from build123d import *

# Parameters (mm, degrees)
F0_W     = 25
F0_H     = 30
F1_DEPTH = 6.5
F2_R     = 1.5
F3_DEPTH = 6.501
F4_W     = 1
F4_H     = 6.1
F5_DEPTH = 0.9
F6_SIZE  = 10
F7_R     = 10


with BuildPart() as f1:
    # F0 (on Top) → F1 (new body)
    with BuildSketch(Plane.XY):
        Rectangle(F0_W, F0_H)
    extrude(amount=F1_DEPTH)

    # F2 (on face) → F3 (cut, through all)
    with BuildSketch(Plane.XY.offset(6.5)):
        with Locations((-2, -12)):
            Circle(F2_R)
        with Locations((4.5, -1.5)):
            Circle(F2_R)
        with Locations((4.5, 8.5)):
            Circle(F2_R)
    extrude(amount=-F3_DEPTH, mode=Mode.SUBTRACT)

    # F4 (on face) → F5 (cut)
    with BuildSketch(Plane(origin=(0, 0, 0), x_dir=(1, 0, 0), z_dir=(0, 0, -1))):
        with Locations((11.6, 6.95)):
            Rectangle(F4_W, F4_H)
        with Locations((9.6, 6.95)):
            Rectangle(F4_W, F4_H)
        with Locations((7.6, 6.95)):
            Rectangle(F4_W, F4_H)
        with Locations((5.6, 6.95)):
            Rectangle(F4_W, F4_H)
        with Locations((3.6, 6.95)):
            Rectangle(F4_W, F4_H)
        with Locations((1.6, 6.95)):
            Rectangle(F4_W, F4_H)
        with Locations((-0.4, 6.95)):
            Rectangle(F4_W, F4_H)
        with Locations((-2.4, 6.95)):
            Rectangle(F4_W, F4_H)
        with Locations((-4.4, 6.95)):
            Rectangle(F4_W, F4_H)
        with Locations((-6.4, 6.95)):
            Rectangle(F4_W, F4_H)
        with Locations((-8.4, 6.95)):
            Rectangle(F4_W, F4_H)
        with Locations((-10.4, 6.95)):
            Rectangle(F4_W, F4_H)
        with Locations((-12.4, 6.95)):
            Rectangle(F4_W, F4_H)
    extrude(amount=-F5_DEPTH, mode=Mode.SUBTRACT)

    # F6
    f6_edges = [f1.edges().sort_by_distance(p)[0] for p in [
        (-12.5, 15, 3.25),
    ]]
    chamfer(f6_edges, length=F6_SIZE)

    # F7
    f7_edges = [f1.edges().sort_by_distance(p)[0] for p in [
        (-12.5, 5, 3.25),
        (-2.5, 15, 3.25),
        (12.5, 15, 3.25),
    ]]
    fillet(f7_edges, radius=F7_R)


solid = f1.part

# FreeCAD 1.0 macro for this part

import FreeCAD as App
import Part
import Sketcher
from FreeCAD import Vector
Q = App.Units.Quantity


def edges_at(feature, points):
    """Names of the edges that pass closest to the given points."""
    edges = feature.Shape.Edges
    near = lambda p: min(range(len(edges)), key=lambda i: edges[i].distToShape(Part.Vertex(*p))[0])
    return sorted({f"Edge{near(p) + 1}" for p in points})

doc = App.newDocument("Part")
params = doc.addObject("Spreadsheet::Sheet", "Params")
for row, (alias, value) in enumerate([
    ("sketch1_width", "25 mm"),
    ("sketch1_height", "30 mm"),
    ("pad1_length", "6.5 mm"),
    ("sketch2_diameter", "3 mm"),
    ("sketch3_width", "1 mm"),
    ("sketch3_height", "6.1 mm"),
    ("pocket2_length", "0.9 mm"),
    ("chamfer_size", "10 mm"),
    ("fillet_radius", "10 mm"),
], start=1):
    params.set(f"A{row}", alias)
    params.set(f"B{row}", "=" + value)
    params.setAlias(f"B{row}", alias)

body = doc.addObject("PartDesign::Body", "Body")

sketch1 = body.newObject("Sketcher::SketchObject", "Sketch")
sketch1.AttachmentSupport = (doc.getObject("XY_Plane"), [""])
sketch1.MapMode = "FlatFace"
sketch1.addGeometry(Part.LineSegment(Vector(-12, 15, 0), Vector(-12, -15, 0)), False)
sketch1.addGeometry(Part.LineSegment(Vector(-12, -15, 0), Vector(12, -15, 0)), False)
sketch1.addGeometry(Part.LineSegment(Vector(12, -15, 0), Vector(12, 15, 0)), False)
sketch1.addGeometry(Part.LineSegment(Vector(12, 15, 0), Vector(-12, 15, 0)), False)
sketch1.addConstraint(Sketcher.Constraint("Coincident", 0, 2, 1, 1))
sketch1.addConstraint(Sketcher.Constraint("Coincident", 1, 2, 2, 1))
sketch1.addConstraint(Sketcher.Constraint("Coincident", 2, 2, 3, 1))
sketch1.addConstraint(Sketcher.Constraint("Coincident", 3, 2, 0, 1))
sketch1.addConstraint(Sketcher.Constraint("Vertical", 0))
sketch1.addConstraint(Sketcher.Constraint("Horizontal", 1))
sketch1.addConstraint(Sketcher.Constraint("Vertical", 2))
sketch1.addConstraint(Sketcher.Constraint("Horizontal", 3))
sketch1.addConstraint(Sketcher.Constraint("Symmetric", 0, 2, 2, 2, -1, 1))
sketch1.addConstraint(Sketcher.Constraint("DistanceX", 1, 1, 1, 2, Q("25 mm")))
sketch1.addConstraint(Sketcher.Constraint("DistanceY", 0, 2, 0, 1, Q("30 mm")))
sketch1.setExpression("Constraints[9]", "Params.sketch1_width")
sketch1.setExpression("Constraints[10]", "Params.sketch1_height")
pad1 = body.newObject("PartDesign::Pad", "Pad")
pad1.Profile = sketch1
pad1.setExpression("Length", "Params.pad1_length")

sketch2 = body.newObject("Sketcher::SketchObject", "Sketch001")
sketch2.AttachmentSupport = (doc.getObject("XY_Plane"), [""])
sketch2.MapMode = "FlatFace"
sketch2.AttachmentOffset = App.Placement(Vector(0, 0, 6.5), App.Rotation())
sketch2.addGeometry(Part.Circle(Vector(-2, -12, 0), Vector(0, 0, 1), 1.5), False)
sketch2.addGeometry(Part.Circle(Vector(4.5, -1.5, 0), Vector(0, 0, 1), 1.5), False)
sketch2.addGeometry(Part.Circle(Vector(4.5, 8.5, 0), Vector(0, 0, 1), 1.5), False)
sketch2.addConstraint(Sketcher.Constraint("Equal", 0, 1))
sketch2.addConstraint(Sketcher.Constraint("Equal", 1, 2))
sketch2.addConstraint(Sketcher.Constraint("Vertical", 1, 3, 2, 3))
sketch2.addConstraint(Sketcher.Constraint("Diameter", 0, Q("3 mm")))
sketch2.addConstraint(Sketcher.Constraint("DistanceX", 0, 3, -1, 1, Q("2 mm")))
sketch2.addConstraint(Sketcher.Constraint("DistanceY", 0, 3, -1, 1, Q("12 mm")))
sketch2.addConstraint(Sketcher.Constraint("DistanceY", 1, 3, 2, 3, Q("10 mm")))
sketch2.addConstraint(Sketcher.Constraint("DistanceX", -1, 1, 1, 3, Q("4.5 mm")))
sketch2.addConstraint(Sketcher.Constraint("DistanceY", 1, 3, -1, 1, Q("1.5 mm")))
sketch2.setExpression("Constraints[3]", "Params.sketch2_diameter")
pocket1 = body.newObject("PartDesign::Pocket", "Pocket")
pocket1.Profile = sketch2
pocket1.Type = "ThroughAll"

sketch3 = body.newObject("Sketcher::SketchObject", "Sketch002")
sketch3.AttachmentSupport = (doc.getObject("XY_Plane"), [""])
sketch3.MapMode = "FlatFace"
sketch3.addGeometry(Part.LineSegment(Vector(11.1, -10, 0), Vector(11.1, -3.9, 0)), False)
sketch3.addGeometry(Part.LineSegment(Vector(11.1, -3.9, 0), Vector(12.1, -3.9, 0)), False)
sketch3.addGeometry(Part.LineSegment(Vector(12.1, -3.9, 0), Vector(12.1, -10, 0)), False)
sketch3.addGeometry(Part.LineSegment(Vector(12.1, -10, 0), Vector(11.1, -10, 0)), False)
sketch3.addGeometry(Part.LineSegment(Vector(9.1, -10, 0), Vector(9.1, -3.9, 0)), False)
sketch3.addGeometry(Part.LineSegment(Vector(9.1, -3.9, 0), Vector(10.1, -3.9, 0)), False)
sketch3.addGeometry(Part.LineSegment(Vector(10.1, -3.9, 0), Vector(10.1, -10, 0)), False)
sketch3.addGeometry(Part.LineSegment(Vector(10.1, -10, 0), Vector(9.1, -10, 0)), False)
sketch3.addGeometry(Part.LineSegment(Vector(7.1, -10, 0), Vector(7.1, -3.9, 0)), False)
sketch3.addGeometry(Part.LineSegment(Vector(7.1, -3.9, 0), Vector(8.1, -3.9, 0)), False)
sketch3.addGeometry(Part.LineSegment(Vector(8.1, -3.9, 0), Vector(8.1, -10, 0)), False)
sketch3.addGeometry(Part.LineSegment(Vector(8.1, -10, 0), Vector(7.1, -10, 0)), False)
sketch3.addGeometry(Part.LineSegment(Vector(5.1, -10, 0), Vector(5.1, -3.9, 0)), False)
sketch3.addGeometry(Part.LineSegment(Vector(5.1, -3.9, 0), Vector(6.1, -3.9, 0)), False)
sketch3.addGeometry(Part.LineSegment(Vector(6.1, -3.9, 0), Vector(6.1, -10, 0)), False)
sketch3.addGeometry(Part.LineSegment(Vector(6.1, -10, 0), Vector(5.1, -10, 0)), False)
sketch3.addGeometry(Part.LineSegment(Vector(3.1, -10, 0), Vector(3.1, -3.9, 0)), False)
sketch3.addGeometry(Part.LineSegment(Vector(3.1, -3.9, 0), Vector(4.1, -3.9, 0)), False)
sketch3.addGeometry(Part.LineSegment(Vector(4.1, -3.9, 0), Vector(4.1, -10, 0)), False)
sketch3.addGeometry(Part.LineSegment(Vector(4.1, -10, 0), Vector(3.1, -10, 0)), False)
sketch3.addGeometry(Part.LineSegment(Vector(1.1, -10, 0), Vector(1.1, -3.9, 0)), False)
sketch3.addGeometry(Part.LineSegment(Vector(1.1, -3.9, 0), Vector(2.1, -3.9, 0)), False)
sketch3.addGeometry(Part.LineSegment(Vector(2.1, -3.9, 0), Vector(2.1, -10, 0)), False)
sketch3.addGeometry(Part.LineSegment(Vector(2.1, -10, 0), Vector(1.1, -10, 0)), False)
sketch3.addGeometry(Part.LineSegment(Vector(-0.9, -10, 0), Vector(-0.9, -3.9, 0)), False)
sketch3.addGeometry(Part.LineSegment(Vector(-0.9, -3.9, 0), Vector(0.1, -3.9, 0)), False)
sketch3.addGeometry(Part.LineSegment(Vector(0.1, -3.9, 0), Vector(0.1, -10, 0)), False)
sketch3.addGeometry(Part.LineSegment(Vector(0.1, -10, 0), Vector(-0.9, -10, 0)), False)
sketch3.addGeometry(Part.LineSegment(Vector(-2.9, -10, 0), Vector(-2.9, -3.9, 0)), False)
sketch3.addGeometry(Part.LineSegment(Vector(-2.9, -3.9, 0), Vector(-1.9, -3.9, 0)), False)
sketch3.addGeometry(Part.LineSegment(Vector(-1.9, -3.9, 0), Vector(-1.9, -10, 0)), False)
sketch3.addGeometry(Part.LineSegment(Vector(-1.9, -10, 0), Vector(-2.9, -10, 0)), False)
sketch3.addGeometry(Part.LineSegment(Vector(-4.9, -10, 0), Vector(-4.9, -3.9, 0)), False)
sketch3.addGeometry(Part.LineSegment(Vector(-4.9, -3.9, 0), Vector(-3.9, -3.9, 0)), False)
sketch3.addGeometry(Part.LineSegment(Vector(-3.9, -3.9, 0), Vector(-3.9, -10, 0)), False)
sketch3.addGeometry(Part.LineSegment(Vector(-3.9, -10, 0), Vector(-4.9, -10, 0)), False)
sketch3.addGeometry(Part.LineSegment(Vector(-6.9, -10, 0), Vector(-6.9, -3.9, 0)), False)
sketch3.addGeometry(Part.LineSegment(Vector(-6.9, -3.9, 0), Vector(-5.9, -3.9, 0)), False)
sketch3.addGeometry(Part.LineSegment(Vector(-5.9, -3.9, 0), Vector(-5.9, -10, 0)), False)
sketch3.addGeometry(Part.LineSegment(Vector(-5.9, -10, 0), Vector(-6.9, -10, 0)), False)
sketch3.addGeometry(Part.LineSegment(Vector(-8.9, -10, 0), Vector(-8.9, -3.9, 0)), False)
sketch3.addGeometry(Part.LineSegment(Vector(-8.9, -3.9, 0), Vector(-7.9, -3.9, 0)), False)
sketch3.addGeometry(Part.LineSegment(Vector(-7.9, -3.9, 0), Vector(-7.9, -10, 0)), False)
sketch3.addGeometry(Part.LineSegment(Vector(-7.9, -10, 0), Vector(-8.9, -10, 0)), False)
sketch3.addGeometry(Part.LineSegment(Vector(-10.9, -10, 0), Vector(-10.9, -3.9, 0)), False)
sketch3.addGeometry(Part.LineSegment(Vector(-10.9, -3.9, 0), Vector(-9.9, -3.9, 0)), False)
sketch3.addGeometry(Part.LineSegment(Vector(-9.9, -3.9, 0), Vector(-9.9, -10, 0)), False)
sketch3.addGeometry(Part.LineSegment(Vector(-9.9, -10, 0), Vector(-10.9, -10, 0)), False)
sketch3.addGeometry(Part.LineSegment(Vector(-12.9, -10, 0), Vector(-12.9, -3.9, 0)), False)
sketch3.addGeometry(Part.LineSegment(Vector(-12.9, -3.9, 0), Vector(-11.9, -3.9, 0)), False)
sketch3.addGeometry(Part.LineSegment(Vector(-11.9, -3.9, 0), Vector(-11.9, -10, 0)), False)
sketch3.addGeometry(Part.LineSegment(Vector(-11.9, -10, 0), Vector(-12.9, -10, 0)), False)
sketch3.addConstraint(Sketcher.Constraint("Coincident", 0, 2, 1, 1))
sketch3.addConstraint(Sketcher.Constraint("Coincident", 1, 2, 2, 1))
sketch3.addConstraint(Sketcher.Constraint("Coincident", 2, 2, 3, 1))
sketch3.addConstraint(Sketcher.Constraint("Coincident", 3, 2, 0, 1))
sketch3.addConstraint(Sketcher.Constraint("Coincident", 4, 2, 5, 1))
sketch3.addConstraint(Sketcher.Constraint("Coincident", 5, 2, 6, 1))
sketch3.addConstraint(Sketcher.Constraint("Coincident", 6, 2, 7, 1))
sketch3.addConstraint(Sketcher.Constraint("Coincident", 7, 2, 4, 1))
sketch3.addConstraint(Sketcher.Constraint("Coincident", 8, 2, 9, 1))
sketch3.addConstraint(Sketcher.Constraint("Coincident", 9, 2, 10, 1))
sketch3.addConstraint(Sketcher.Constraint("Coincident", 10, 2, 11, 1))
sketch3.addConstraint(Sketcher.Constraint("Coincident", 11, 2, 8, 1))
sketch3.addConstraint(Sketcher.Constraint("Coincident", 12, 2, 13, 1))
sketch3.addConstraint(Sketcher.Constraint("Coincident", 13, 2, 14, 1))
sketch3.addConstraint(Sketcher.Constraint("Coincident", 14, 2, 15, 1))
sketch3.addConstraint(Sketcher.Constraint("Coincident", 15, 2, 12, 1))
sketch3.addConstraint(Sketcher.Constraint("Coincident", 16, 2, 17, 1))
sketch3.addConstraint(Sketcher.Constraint("Coincident", 17, 2, 18, 1))
sketch3.addConstraint(Sketcher.Constraint("Coincident", 18, 2, 19, 1))
sketch3.addConstraint(Sketcher.Constraint("Coincident", 19, 2, 16, 1))
sketch3.addConstraint(Sketcher.Constraint("Coincident", 20, 2, 21, 1))
sketch3.addConstraint(Sketcher.Constraint("Coincident", 21, 2, 22, 1))
sketch3.addConstraint(Sketcher.Constraint("Coincident", 22, 2, 23, 1))
sketch3.addConstraint(Sketcher.Constraint("Coincident", 23, 2, 20, 1))
sketch3.addConstraint(Sketcher.Constraint("Coincident", 24, 2, 25, 1))
sketch3.addConstraint(Sketcher.Constraint("Coincident", 25, 2, 26, 1))
sketch3.addConstraint(Sketcher.Constraint("Coincident", 26, 2, 27, 1))
sketch3.addConstraint(Sketcher.Constraint("Coincident", 27, 2, 24, 1))
sketch3.addConstraint(Sketcher.Constraint("Coincident", 28, 2, 29, 1))
sketch3.addConstraint(Sketcher.Constraint("Coincident", 29, 2, 30, 1))
sketch3.addConstraint(Sketcher.Constraint("Coincident", 30, 2, 31, 1))
sketch3.addConstraint(Sketcher.Constraint("Coincident", 31, 2, 28, 1))
sketch3.addConstraint(Sketcher.Constraint("Coincident", 32, 2, 33, 1))
sketch3.addConstraint(Sketcher.Constraint("Coincident", 33, 2, 34, 1))
sketch3.addConstraint(Sketcher.Constraint("Coincident", 34, 2, 35, 1))
sketch3.addConstraint(Sketcher.Constraint("Coincident", 35, 2, 32, 1))
sketch3.addConstraint(Sketcher.Constraint("Coincident", 36, 2, 37, 1))
sketch3.addConstraint(Sketcher.Constraint("Coincident", 37, 2, 38, 1))
sketch3.addConstraint(Sketcher.Constraint("Coincident", 38, 2, 39, 1))
sketch3.addConstraint(Sketcher.Constraint("Coincident", 39, 2, 36, 1))
sketch3.addConstraint(Sketcher.Constraint("Coincident", 40, 2, 41, 1))
sketch3.addConstraint(Sketcher.Constraint("Coincident", 41, 2, 42, 1))
sketch3.addConstraint(Sketcher.Constraint("Coincident", 42, 2, 43, 1))
sketch3.addConstraint(Sketcher.Constraint("Coincident", 43, 2, 40, 1))
sketch3.addConstraint(Sketcher.Constraint("Coincident", 44, 2, 45, 1))
sketch3.addConstraint(Sketcher.Constraint("Coincident", 45, 2, 46, 1))
sketch3.addConstraint(Sketcher.Constraint("Coincident", 46, 2, 47, 1))
sketch3.addConstraint(Sketcher.Constraint("Coincident", 47, 2, 44, 1))
sketch3.addConstraint(Sketcher.Constraint("Coincident", 48, 2, 49, 1))
sketch3.addConstraint(Sketcher.Constraint("Coincident", 49, 2, 50, 1))
sketch3.addConstraint(Sketcher.Constraint("Coincident", 50, 2, 51, 1))
sketch3.addConstraint(Sketcher.Constraint("Coincident", 51, 2, 48, 1))
sketch3.addConstraint(Sketcher.Constraint("Vertical", 0))
sketch3.addConstraint(Sketcher.Constraint("Horizontal", 1))
sketch3.addConstraint(Sketcher.Constraint("Vertical", 2))
sketch3.addConstraint(Sketcher.Constraint("Horizontal", 3))
sketch3.addConstraint(Sketcher.Constraint("Vertical", 4))
sketch3.addConstraint(Sketcher.Constraint("Horizontal", 5))
sketch3.addConstraint(Sketcher.Constraint("Vertical", 6))
sketch3.addConstraint(Sketcher.Constraint("Horizontal", 7))
sketch3.addConstraint(Sketcher.Constraint("Vertical", 8))
sketch3.addConstraint(Sketcher.Constraint("Horizontal", 9))
sketch3.addConstraint(Sketcher.Constraint("Vertical", 10))
sketch3.addConstraint(Sketcher.Constraint("Horizontal", 11))
sketch3.addConstraint(Sketcher.Constraint("Vertical", 12))
sketch3.addConstraint(Sketcher.Constraint("Horizontal", 13))
sketch3.addConstraint(Sketcher.Constraint("Vertical", 14))
sketch3.addConstraint(Sketcher.Constraint("Horizontal", 15))
sketch3.addConstraint(Sketcher.Constraint("Vertical", 16))
sketch3.addConstraint(Sketcher.Constraint("Horizontal", 17))
sketch3.addConstraint(Sketcher.Constraint("Vertical", 18))
sketch3.addConstraint(Sketcher.Constraint("Horizontal", 19))
sketch3.addConstraint(Sketcher.Constraint("Vertical", 20))
sketch3.addConstraint(Sketcher.Constraint("Horizontal", 21))
sketch3.addConstraint(Sketcher.Constraint("Vertical", 22))
sketch3.addConstraint(Sketcher.Constraint("Horizontal", 23))
sketch3.addConstraint(Sketcher.Constraint("Vertical", 24))
sketch3.addConstraint(Sketcher.Constraint("Horizontal", 25))
sketch3.addConstraint(Sketcher.Constraint("Vertical", 26))
sketch3.addConstraint(Sketcher.Constraint("Horizontal", 27))
sketch3.addConstraint(Sketcher.Constraint("Vertical", 28))
sketch3.addConstraint(Sketcher.Constraint("Horizontal", 29))
sketch3.addConstraint(Sketcher.Constraint("Vertical", 30))
sketch3.addConstraint(Sketcher.Constraint("Horizontal", 31))
sketch3.addConstraint(Sketcher.Constraint("Vertical", 32))
sketch3.addConstraint(Sketcher.Constraint("Horizontal", 33))
sketch3.addConstraint(Sketcher.Constraint("Vertical", 34))
sketch3.addConstraint(Sketcher.Constraint("Horizontal", 35))
sketch3.addConstraint(Sketcher.Constraint("Vertical", 36))
sketch3.addConstraint(Sketcher.Constraint("Horizontal", 37))
sketch3.addConstraint(Sketcher.Constraint("Vertical", 38))
sketch3.addConstraint(Sketcher.Constraint("Horizontal", 39))
sketch3.addConstraint(Sketcher.Constraint("Vertical", 40))
sketch3.addConstraint(Sketcher.Constraint("Horizontal", 41))
sketch3.addConstraint(Sketcher.Constraint("Vertical", 42))
sketch3.addConstraint(Sketcher.Constraint("Horizontal", 43))
sketch3.addConstraint(Sketcher.Constraint("Vertical", 44))
sketch3.addConstraint(Sketcher.Constraint("Horizontal", 45))
sketch3.addConstraint(Sketcher.Constraint("Vertical", 46))
sketch3.addConstraint(Sketcher.Constraint("Horizontal", 47))
sketch3.addConstraint(Sketcher.Constraint("Vertical", 48))
sketch3.addConstraint(Sketcher.Constraint("Horizontal", 49))
sketch3.addConstraint(Sketcher.Constraint("Vertical", 50))
sketch3.addConstraint(Sketcher.Constraint("Horizontal", 51))
sketch3.addConstraint(Sketcher.Constraint("Horizontal", 1, 2, 4, 2))
sketch3.addConstraint(Sketcher.Constraint("Horizontal", 3, 2, 6, 2))
sketch3.addConstraint(Sketcher.Constraint("Horizontal", 5, 2, 8, 2))
sketch3.addConstraint(Sketcher.Constraint("Horizontal", 7, 2, 10, 2))
sketch3.addConstraint(Sketcher.Constraint("Horizontal", 9, 2, 12, 2))
sketch3.addConstraint(Sketcher.Constraint("Horizontal", 11, 2, 14, 2))
sketch3.addConstraint(Sketcher.Constraint("Horizontal", 13, 2, 16, 2))
sketch3.addConstraint(Sketcher.Constraint("Horizontal", 15, 2, 18, 2))
sketch3.addConstraint(Sketcher.Constraint("Horizontal", 17, 2, 20, 2))
sketch3.addConstraint(Sketcher.Constraint("Horizontal", 19, 2, 22, 2))
sketch3.addConstraint(Sketcher.Constraint("Horizontal", 21, 2, 24, 2))
sketch3.addConstraint(Sketcher.Constraint("Horizontal", 23, 2, 26, 2))
sketch3.addConstraint(Sketcher.Constraint("Horizontal", 25, 2, 28, 2))
sketch3.addConstraint(Sketcher.Constraint("Horizontal", 27, 2, 30, 2))
sketch3.addConstraint(Sketcher.Constraint("Horizontal", 29, 2, 32, 2))
sketch3.addConstraint(Sketcher.Constraint("Horizontal", 31, 2, 34, 2))
sketch3.addConstraint(Sketcher.Constraint("Horizontal", 33, 2, 36, 2))
sketch3.addConstraint(Sketcher.Constraint("Horizontal", 35, 2, 38, 2))
sketch3.addConstraint(Sketcher.Constraint("Horizontal", 37, 2, 40, 2))
sketch3.addConstraint(Sketcher.Constraint("Horizontal", 39, 2, 42, 2))
sketch3.addConstraint(Sketcher.Constraint("Horizontal", 41, 2, 44, 2))
sketch3.addConstraint(Sketcher.Constraint("Horizontal", 43, 2, 46, 2))
sketch3.addConstraint(Sketcher.Constraint("Horizontal", 45, 2, 48, 2))
sketch3.addConstraint(Sketcher.Constraint("Horizontal", 47, 2, 50, 2))
sketch3.addConstraint(Sketcher.Constraint("Equal", 3, 5))
sketch3.addConstraint(Sketcher.Constraint("Equal", 7, 9))
sketch3.addConstraint(Sketcher.Constraint("Equal", 11, 13))
sketch3.addConstraint(Sketcher.Constraint("Equal", 15, 17))
sketch3.addConstraint(Sketcher.Constraint("Equal", 19, 21))
sketch3.addConstraint(Sketcher.Constraint("Equal", 23, 25))
sketch3.addConstraint(Sketcher.Constraint("Equal", 27, 29))
sketch3.addConstraint(Sketcher.Constraint("Equal", 31, 33))
sketch3.addConstraint(Sketcher.Constraint("Equal", 35, 37))
sketch3.addConstraint(Sketcher.Constraint("Equal", 39, 41))
sketch3.addConstraint(Sketcher.Constraint("Equal", 43, 45))
sketch3.addConstraint(Sketcher.Constraint("Equal", 47, 49))
sketch3.addConstraint(Sketcher.Constraint("DistanceX", 1, 1, 1, 2, Q("1 mm")))
sketch3.addConstraint(Sketcher.Constraint("DistanceY", 0, 1, 0, 2, Q("6.1 mm")))
sketch3.addConstraint(Sketcher.Constraint("DistanceY", 2, 2, -1, 1, Q("10 mm")))
sketch3.addConstraint(Sketcher.Constraint("DistanceX", 4, 2, 0, 2, Q("2 mm")))
sketch3.addConstraint(Sketcher.Constraint("DistanceX", 8, 2, 4, 2, Q("2 mm")))
sketch3.addConstraint(Sketcher.Constraint("DistanceX", 12, 2, 8, 2, Q("2 mm")))
sketch3.addConstraint(Sketcher.Constraint("DistanceX", 16, 2, 12, 2, Q("2 mm")))
sketch3.addConstraint(Sketcher.Constraint("DistanceX", 20, 2, 16, 2, Q("2 mm")))
sketch3.addConstraint(Sketcher.Constraint("DistanceX", 24, 2, 20, 2, Q("2 mm")))
sketch3.addConstraint(Sketcher.Constraint("DistanceX", 28, 2, 24, 2, Q("2 mm")))
sketch3.addConstraint(Sketcher.Constraint("DistanceX", 32, 2, 28, 2, Q("2 mm")))
sketch3.addConstraint(Sketcher.Constraint("DistanceX", 36, 2, 32, 2, Q("2 mm")))
sketch3.addConstraint(Sketcher.Constraint("DistanceX", 40, 2, 36, 2, Q("2 mm")))
sketch3.addConstraint(Sketcher.Constraint("DistanceX", 44, 2, 40, 2, Q("2 mm")))
sketch3.addConstraint(Sketcher.Constraint("DistanceX", 48, 2, 44, 2, Q("2 mm")))
sketch3.addConstraint(Sketcher.Constraint("DistanceX", -1, 1, 0, 2, Q("11.1 mm")))
sketch3.setExpression("Constraints[140]", "Params.sketch3_width")
sketch3.setExpression("Constraints[141]", "Params.sketch3_height")
pocket2 = body.newObject("PartDesign::Pocket", "Pocket001")
pocket2.Profile = sketch3
pocket2.setExpression("Length", "Params.pocket2_length")
pocket2.Reversed = True
doc.recompute()

chamfer = body.newObject("PartDesign::Chamfer", "Chamfer")
chamfer.Base = (pocket2, edges_at(pocket2, [(-12.5, 15, 3.25)]))
chamfer.setExpression("Size", "Params.chamfer_size")
doc.recompute()

fillet = body.newObject("PartDesign::Fillet", "Fillet")
fillet.Base = (chamfer, edges_at(chamfer, [(-12.5, 5, 3.25), (-2.5, 15, 3.25), (12.5, 15, 3.25)]))
fillet.setExpression("Radius", "Params.fillet_radius")

doc.recompute()
